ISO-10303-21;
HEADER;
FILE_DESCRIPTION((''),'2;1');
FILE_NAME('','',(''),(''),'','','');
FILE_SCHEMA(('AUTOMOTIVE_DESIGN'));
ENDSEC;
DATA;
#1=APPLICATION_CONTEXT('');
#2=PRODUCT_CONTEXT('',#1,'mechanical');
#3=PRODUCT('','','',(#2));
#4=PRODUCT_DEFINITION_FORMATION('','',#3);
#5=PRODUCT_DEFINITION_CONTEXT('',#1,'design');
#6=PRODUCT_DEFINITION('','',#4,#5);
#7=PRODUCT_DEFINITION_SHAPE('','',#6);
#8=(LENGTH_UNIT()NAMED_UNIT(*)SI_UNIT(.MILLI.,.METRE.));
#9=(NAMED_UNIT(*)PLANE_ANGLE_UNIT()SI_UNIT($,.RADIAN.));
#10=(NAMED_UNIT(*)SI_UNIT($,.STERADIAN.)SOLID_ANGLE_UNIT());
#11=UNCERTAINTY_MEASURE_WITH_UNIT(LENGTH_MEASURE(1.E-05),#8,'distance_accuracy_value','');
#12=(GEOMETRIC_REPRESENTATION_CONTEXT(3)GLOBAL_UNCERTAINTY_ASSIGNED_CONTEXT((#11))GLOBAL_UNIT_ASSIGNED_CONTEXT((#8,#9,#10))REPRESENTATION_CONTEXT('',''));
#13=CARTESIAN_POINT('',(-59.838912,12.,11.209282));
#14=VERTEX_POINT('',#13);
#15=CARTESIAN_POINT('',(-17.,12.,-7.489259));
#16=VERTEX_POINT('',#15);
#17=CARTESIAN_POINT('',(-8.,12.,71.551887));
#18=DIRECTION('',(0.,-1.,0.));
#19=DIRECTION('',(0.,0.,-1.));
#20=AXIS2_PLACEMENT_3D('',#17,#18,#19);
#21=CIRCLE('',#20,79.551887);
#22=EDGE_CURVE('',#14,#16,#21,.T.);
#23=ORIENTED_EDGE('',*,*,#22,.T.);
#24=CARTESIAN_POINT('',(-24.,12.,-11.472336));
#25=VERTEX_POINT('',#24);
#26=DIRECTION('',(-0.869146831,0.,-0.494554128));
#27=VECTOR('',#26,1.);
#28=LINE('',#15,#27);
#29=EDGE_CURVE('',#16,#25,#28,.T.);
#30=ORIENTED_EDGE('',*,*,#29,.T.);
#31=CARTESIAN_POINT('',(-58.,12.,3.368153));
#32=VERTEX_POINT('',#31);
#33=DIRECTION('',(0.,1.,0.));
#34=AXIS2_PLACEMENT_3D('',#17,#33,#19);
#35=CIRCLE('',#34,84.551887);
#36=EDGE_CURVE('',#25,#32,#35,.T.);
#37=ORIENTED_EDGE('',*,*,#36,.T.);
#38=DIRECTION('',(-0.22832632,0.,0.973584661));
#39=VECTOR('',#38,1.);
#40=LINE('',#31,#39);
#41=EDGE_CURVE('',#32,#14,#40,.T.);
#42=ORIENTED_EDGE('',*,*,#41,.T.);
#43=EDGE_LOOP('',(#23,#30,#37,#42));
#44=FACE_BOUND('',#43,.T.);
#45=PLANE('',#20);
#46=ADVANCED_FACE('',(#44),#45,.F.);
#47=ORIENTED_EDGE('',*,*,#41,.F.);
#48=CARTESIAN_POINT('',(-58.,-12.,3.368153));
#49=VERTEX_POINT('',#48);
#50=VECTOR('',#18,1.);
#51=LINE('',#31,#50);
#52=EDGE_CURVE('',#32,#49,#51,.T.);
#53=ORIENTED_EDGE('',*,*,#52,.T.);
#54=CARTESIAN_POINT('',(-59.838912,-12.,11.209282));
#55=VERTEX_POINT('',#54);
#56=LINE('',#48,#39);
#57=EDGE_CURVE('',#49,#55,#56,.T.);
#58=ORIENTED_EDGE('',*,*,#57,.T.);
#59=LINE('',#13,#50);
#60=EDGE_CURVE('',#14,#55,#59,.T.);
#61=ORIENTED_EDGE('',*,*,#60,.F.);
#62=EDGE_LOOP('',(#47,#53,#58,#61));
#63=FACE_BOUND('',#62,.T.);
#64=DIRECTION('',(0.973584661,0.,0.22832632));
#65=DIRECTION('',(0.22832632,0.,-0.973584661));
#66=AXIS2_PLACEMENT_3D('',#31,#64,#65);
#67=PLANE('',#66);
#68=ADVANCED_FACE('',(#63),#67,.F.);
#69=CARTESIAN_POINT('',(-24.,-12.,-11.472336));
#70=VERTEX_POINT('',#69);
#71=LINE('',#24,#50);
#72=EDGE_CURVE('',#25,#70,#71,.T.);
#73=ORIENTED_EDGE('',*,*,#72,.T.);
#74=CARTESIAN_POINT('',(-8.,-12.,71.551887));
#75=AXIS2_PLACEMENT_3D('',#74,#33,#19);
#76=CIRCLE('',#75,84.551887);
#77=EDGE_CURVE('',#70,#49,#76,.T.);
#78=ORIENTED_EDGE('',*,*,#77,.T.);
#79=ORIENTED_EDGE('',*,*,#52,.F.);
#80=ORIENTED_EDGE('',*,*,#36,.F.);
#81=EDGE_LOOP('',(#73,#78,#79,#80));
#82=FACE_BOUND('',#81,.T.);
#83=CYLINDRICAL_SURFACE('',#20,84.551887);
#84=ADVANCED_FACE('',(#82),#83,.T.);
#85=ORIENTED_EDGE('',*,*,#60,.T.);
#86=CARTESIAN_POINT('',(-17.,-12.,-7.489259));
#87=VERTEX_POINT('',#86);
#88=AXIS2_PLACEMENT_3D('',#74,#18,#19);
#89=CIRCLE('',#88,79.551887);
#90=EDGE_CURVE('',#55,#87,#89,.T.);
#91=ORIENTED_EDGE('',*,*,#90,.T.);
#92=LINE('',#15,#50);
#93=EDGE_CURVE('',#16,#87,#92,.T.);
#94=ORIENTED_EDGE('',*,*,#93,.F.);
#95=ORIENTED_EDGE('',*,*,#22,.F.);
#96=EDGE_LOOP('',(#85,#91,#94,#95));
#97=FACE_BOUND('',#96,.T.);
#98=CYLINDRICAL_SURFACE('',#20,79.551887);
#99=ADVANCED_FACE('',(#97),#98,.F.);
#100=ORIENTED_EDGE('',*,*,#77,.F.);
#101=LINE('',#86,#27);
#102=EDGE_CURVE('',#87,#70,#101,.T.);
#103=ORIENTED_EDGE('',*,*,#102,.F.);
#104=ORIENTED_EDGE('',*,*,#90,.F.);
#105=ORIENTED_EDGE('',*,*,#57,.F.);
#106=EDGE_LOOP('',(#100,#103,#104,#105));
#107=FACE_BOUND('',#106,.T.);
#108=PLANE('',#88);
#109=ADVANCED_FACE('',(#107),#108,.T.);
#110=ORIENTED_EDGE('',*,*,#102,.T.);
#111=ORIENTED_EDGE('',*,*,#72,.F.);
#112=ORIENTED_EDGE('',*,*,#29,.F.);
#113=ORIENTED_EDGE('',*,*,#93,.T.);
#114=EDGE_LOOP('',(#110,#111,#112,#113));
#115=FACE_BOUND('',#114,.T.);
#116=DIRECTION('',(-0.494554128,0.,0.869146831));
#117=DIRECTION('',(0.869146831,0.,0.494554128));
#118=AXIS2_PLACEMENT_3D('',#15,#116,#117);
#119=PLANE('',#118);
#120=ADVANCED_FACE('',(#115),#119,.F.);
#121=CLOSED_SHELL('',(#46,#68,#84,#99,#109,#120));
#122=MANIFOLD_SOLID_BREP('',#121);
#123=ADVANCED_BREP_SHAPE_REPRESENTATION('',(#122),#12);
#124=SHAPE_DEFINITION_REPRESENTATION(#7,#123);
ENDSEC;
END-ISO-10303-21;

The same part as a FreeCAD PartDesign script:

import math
import FreeCAD as App
import Part
import Sketcher
Q = App.Units.Quantity

doc = App.newDocument("Part")
body = doc.addObject("PartDesign::Body", "Body")

sketch1 = body.newObject("Sketcher::SketchObject", "Sketch")
sketch1.AttachmentSupport = (doc.getObject("XZ_Plane"), [""])
sketch1.MapMode = "FlatFace"
sketch1.addGeometry(Part.LineSegment(App.Vector(-17, -7, 0), App.Vector(-24, -11, 0)), False)
sketch1.addGeometry(Part.ArcOfCircle(Part.Circle(App.Vector(-8, 72, 0), App.Vector(0, 0, 1), 85), math.radians(-126), math.radians(-101)), False)
sketch1.addGeometry(Part.LineSegment(App.Vector(-58, 3, 0), App.Vector(-60, 11, 0)), False)
sketch1.addGeometry(Part.ArcOfCircle(Part.Circle(App.Vector(-8, 72, 0), App.Vector(0, 0, 1), 80), math.radians(-131), math.radians(-96)), False)
sketch1.addConstraint(Sketcher.Constraint("Coincident", 0, 2, 1, 2))
sketch1.addConstraint(Sketcher.Constraint("Coincident", 1, 1, 2, 1))
sketch1.addConstraint(Sketcher.Constraint("Coincident", 2, 2, 3, 1))
sketch1.addConstraint(Sketcher.Constraint("Coincident", 3, 2, 0, 1))
sketch1.addConstraint(Sketcher.Constraint("Coincident", 3, 3, 1, 3))
sketch1.addConstraint(Sketcher.Constraint("Equal", 0, 2))
sketch1.addConstraint(Sketcher.Constraint("DistanceX", 1, 3, -1, 1, Q("8 mm")))
sketch1.addConstraint(Sketcher.Constraint("DistanceX", 0, 2, -1, 1, Q("24 mm")))
sketch1.addConstraint(Sketcher.Constraint("DistanceX", 1, 1, -1, 1, Q("58 mm")))
sketch1.addConstraint(Sketcher.Constraint("DistanceX", 3, 2, -1, 1, Q("17 mm")))
sketch1.addConstraint(Sketcher.Constraint("Radius", 1, Q("84.551887 mm")))
sketch1.addConstraint(Sketcher.Constraint("Radius", 3, Q("79.551887 mm")))
sketch1.addConstraint(Sketcher.Constraint("DistanceY", 3, 2, -1, 1, Q("7.489259 mm")))
pad1 = body.newObject("PartDesign::Pad", "Pad")
pad1.Profile = sketch1
pad1.Length = 24
pad1.Midplane = True

doc.recompute()
